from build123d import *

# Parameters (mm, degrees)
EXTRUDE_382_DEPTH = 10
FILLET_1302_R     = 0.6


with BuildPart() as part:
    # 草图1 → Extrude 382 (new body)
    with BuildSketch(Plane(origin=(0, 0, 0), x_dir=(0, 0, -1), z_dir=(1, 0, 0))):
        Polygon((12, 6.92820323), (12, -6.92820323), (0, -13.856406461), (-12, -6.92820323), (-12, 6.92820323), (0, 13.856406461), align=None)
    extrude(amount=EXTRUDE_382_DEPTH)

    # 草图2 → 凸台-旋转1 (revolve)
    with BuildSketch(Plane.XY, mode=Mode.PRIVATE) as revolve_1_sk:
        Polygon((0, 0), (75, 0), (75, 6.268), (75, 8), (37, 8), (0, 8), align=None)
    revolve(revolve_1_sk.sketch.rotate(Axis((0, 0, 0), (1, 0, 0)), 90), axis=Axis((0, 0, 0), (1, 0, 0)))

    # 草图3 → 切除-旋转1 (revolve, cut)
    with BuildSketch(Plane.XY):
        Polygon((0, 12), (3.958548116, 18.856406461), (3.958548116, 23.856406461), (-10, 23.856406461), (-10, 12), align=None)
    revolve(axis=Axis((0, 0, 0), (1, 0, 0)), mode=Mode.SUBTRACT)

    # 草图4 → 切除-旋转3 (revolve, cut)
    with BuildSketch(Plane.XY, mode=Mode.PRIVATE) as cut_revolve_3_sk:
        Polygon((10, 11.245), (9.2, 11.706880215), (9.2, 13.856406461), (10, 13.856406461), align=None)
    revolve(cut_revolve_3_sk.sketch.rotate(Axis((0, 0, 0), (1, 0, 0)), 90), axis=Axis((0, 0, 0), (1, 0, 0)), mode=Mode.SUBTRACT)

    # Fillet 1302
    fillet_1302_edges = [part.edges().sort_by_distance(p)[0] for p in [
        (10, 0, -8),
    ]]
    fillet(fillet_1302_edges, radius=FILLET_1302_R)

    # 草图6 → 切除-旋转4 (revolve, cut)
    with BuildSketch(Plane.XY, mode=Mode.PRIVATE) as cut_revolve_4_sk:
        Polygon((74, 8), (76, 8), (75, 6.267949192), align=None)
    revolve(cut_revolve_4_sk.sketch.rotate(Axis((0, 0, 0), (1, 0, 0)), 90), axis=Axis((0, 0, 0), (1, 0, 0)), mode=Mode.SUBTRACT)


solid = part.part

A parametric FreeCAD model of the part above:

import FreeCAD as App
import Part
import Sketcher
from FreeCAD import Vector
Q = App.Units.Quantity


def edges_at(feature, points):
    """Names of the edges that pass closest to the given points."""
    edges = feature.Shape.Edges
    near = lambda p: min(range(len(edges)), key=lambda i: edges[i].distToShape(Part.Vertex(*p))[0])
    return sorted({f"Edge{near(p) + 1}" for p in points})


def add_polygon(sketch, points):
    """Adds a closed chain of lines whose ends are joined by coincident constraints."""
    first, n = sketch.GeometryCount, len(points)
    for a, b in zip(points, points[1:] + points[:1]):
        sketch.addGeometry(Part.LineSegment(App.Vector(*a, 0), App.Vector(*b, 0)), False)
    for i in range(n):
        sketch.addConstraint(Sketcher.Constraint("Coincident", first + i, 2, first + (i + 1) % n, 1))

doc = App.newDocument("Part")
body = doc.addObject("PartDesign::Body", "Body")

sketch1 = body.newObject("Sketcher::SketchObject", "Sketch")
sketch1.AttachmentSupport = (doc.getObject("YZ_Plane"), [""])
sketch1.MapMode = "FlatFace"
add_polygon(sketch1, [(-6.928203, -12), (6.928203, -12), (13.856406, 0), (6.928203, 12), (-6.928203, 12), (-13.856406, 0)])
sketch1.addConstraint(Sketcher.Constraint("Horizontal", 0))
sketch1.addConstraint(Sketcher.Constraint("Horizontal", 3))
sketch1.addConstraint(Sketcher.Constraint("Symmetric", 0, 2, 3, 2, -1, 1))
sketch1.addConstraint(Sketcher.Constraint("Symmetric", 1, 2, 4, 2, -1, 1))
sketch1.addConstraint(Sketcher.Constraint("PointOnObject", 1, 2, -1))
sketch1.addConstraint(Sketcher.Constraint("Parallel", 2, 5))
sketch1.addConstraint(Sketcher.Constraint("Vertical", 0, 2, 2, 2))
sketch1.addConstraint(Sketcher.Constraint("Angle", 1, Q("60 deg")))
sketch1.addConstraint(Sketcher.Constraint("DistanceY", 0, 2, -1, 1, Q("12 mm")))
sketch1.addConstraint(Sketcher.Constraint("DistanceX", 0, 1, 0, 2, Q("13.856406 mm")))
pad1 = body.newObject("PartDesign::Pad", "Pad")
pad1.Profile = sketch1
pad1.Length = 10

sketch2 = body.newObject("Sketcher::SketchObject", "Sketch001")
sketch2.AttachmentSupport = (doc.getObject("XY_Plane"), [""])
sketch2.MapMode = "FlatFace"
add_polygon(sketch2, [(0, 0), (75, 0), (75, 8), (0, 8)])
sketch2.addConstraint(Sketcher.Constraint("Horizontal", 0))
sketch2.addConstraint(Sketcher.Constraint("Vertical", 1))
sketch2.addConstraint(Sketcher.Constraint("Horizontal", 2))
sketch2.addConstraint(Sketcher.Constraint("Vertical", 3))
sketch2.addConstraint(Sketcher.Constraint("Coincident", 3, 2, -1, 1))
sketch2.addConstraint(Sketcher.Constraint("DistanceX", 0, 1, 0, 2, Q("75 mm")))
sketch2.addConstraint(Sketcher.Constraint("DistanceY", 1, 1, 1, 2, Q("8 mm")))
revolution = body.newObject("PartDesign::Revolution", "Revolution")
revolution.Profile = sketch2
revolution.ReferenceAxis = (sketch2, ["H_Axis"])
revolution.Angle = 360

sketch3 = body.newObject("Sketcher::SketchObject", "Sketch002")
sketch3.AttachmentSupport = (doc.getObject("XY_Plane"), [""])
sketch3.MapMode = "FlatFace"
add_polygon(sketch3, [(0, 12), (3.958548, 18.856406), (3.958548, 23.856406), (-10, 23.856406), (-10, 12)])
sketch3.addConstraint(Sketcher.Constraint("Vertical", 1))
sketch3.addConstraint(Sketcher.Constraint("Horizontal", 2))
sketch3.addConstraint(Sketcher.Constraint("Vertical", 3))
sketch3.addConstraint(Sketcher.Constraint("Horizontal", 4))
sketch3.addConstraint(Sketcher.Constraint("PointOnObject", 4, 2, -2))
sketch3.addConstraint(Sketcher.Constraint("DistanceX", 4, 1, 4, 2, Q("10 mm")))
sketch3.addConstraint(Sketcher.Constraint("DistanceY", 1, 1, 1, 2, Q("5 mm")))
sketch3.addConstraint(Sketcher.Constraint("Angle", 0, Q("60 deg")))
sketch3.addConstraint(Sketcher.Constraint("DistanceY", -1, 1, 3, 2, Q("12 mm")))
sketch3.addConstraint(Sketcher.Constraint("DistanceX", 2, 2, 2, 1, Q("13.958548 mm")))
groove = body.newObject("PartDesign::Groove", "Groove")
groove.Profile = sketch3
groove.ReferenceAxis = (sketch3, ["H_Axis"])
groove.Angle = 360

sketch4 = body.newObject("Sketcher::SketchObject", "Sketch003")
sketch4.AttachmentSupport = (doc.getObject("XY_Plane"), [""])
sketch4.MapMode = "FlatFace"
add_polygon(sketch4, [(9.2, 11.70688), (10, 11.245), (10, 13.856406), (9.2, 13.856406)])
sketch4.addConstraint(Sketcher.Constraint("Vertical", 1))
sketch4.addConstraint(Sketcher.Constraint("Horizontal", 2))
sketch4.addConstraint(Sketcher.Constraint("Vertical", 3))
sketch4.addConstraint(Sketcher.Constraint("Angle", 0, Q("-30 deg")))
sketch4.addConstraint(Sketcher.Constraint("DistanceX", 2, 2, 2, 1, Q("0.8 mm")))
sketch4.addConstraint(Sketcher.Constraint("DistanceX", -1, 1, 0, 2, Q("10 mm")))
sketch4.addConstraint(Sketcher.Constraint("DistanceY", -1, 1, 0, 2, Q("11.245 mm")))
sketch4.addConstraint(Sketcher.Constraint("DistanceY", 1, 1, 1, 2, Q("2.611406 mm")))
groove2 = body.newObject("PartDesign::Groove", "Groove001")
groove2.Profile = sketch4
groove2.ReferenceAxis = (sketch4, ["H_Axis"])
groove2.Angle = 360
doc.recompute()

fillet = body.newObject("PartDesign::Fillet", "Fillet")
fillet.Base = (groove2, edges_at(groove2, [(10, 0, -8)]))
fillet.Radius = 0.6

sketch5 = body.newObject("Sketcher::SketchObject", "Sketch004")
sketch5.AttachmentSupport = (doc.getObject("XY_Plane"), [""])
sketch5.MapMode = "FlatFace"
add_polygon(sketch5, [(76, 8), (74, 8), (75, 6.267949)])
sketch5.addConstraint(Sketcher.Constraint("Horizontal", 0))
sketch5.addConstraint(Sketcher.Constraint("Equal", 1, 2))
sketch5.addConstraint(Sketcher.Constraint("DistanceX", 0, 2, 0, 1, Q("2 mm")))
sketch5.addConstraint(Sketcher.Constraint("Angle", 1, Q("-60 deg")))
sketch5.addConstraint(Sketcher.Constraint("DistanceX", -1, 1, 0, 2, Q("74 mm")))
sketch5.addConstraint(Sketcher.Constraint("DistanceY", -1, 1, 0, 2, Q("8 mm")))
groove3 = body.newObject("PartDesign::Groove", "Groove002")
groove3.Profile = sketch5
groove3.ReferenceAxis = (sketch5, ["H_Axis"])
groove3.Angle = 360

doc.recompute()
